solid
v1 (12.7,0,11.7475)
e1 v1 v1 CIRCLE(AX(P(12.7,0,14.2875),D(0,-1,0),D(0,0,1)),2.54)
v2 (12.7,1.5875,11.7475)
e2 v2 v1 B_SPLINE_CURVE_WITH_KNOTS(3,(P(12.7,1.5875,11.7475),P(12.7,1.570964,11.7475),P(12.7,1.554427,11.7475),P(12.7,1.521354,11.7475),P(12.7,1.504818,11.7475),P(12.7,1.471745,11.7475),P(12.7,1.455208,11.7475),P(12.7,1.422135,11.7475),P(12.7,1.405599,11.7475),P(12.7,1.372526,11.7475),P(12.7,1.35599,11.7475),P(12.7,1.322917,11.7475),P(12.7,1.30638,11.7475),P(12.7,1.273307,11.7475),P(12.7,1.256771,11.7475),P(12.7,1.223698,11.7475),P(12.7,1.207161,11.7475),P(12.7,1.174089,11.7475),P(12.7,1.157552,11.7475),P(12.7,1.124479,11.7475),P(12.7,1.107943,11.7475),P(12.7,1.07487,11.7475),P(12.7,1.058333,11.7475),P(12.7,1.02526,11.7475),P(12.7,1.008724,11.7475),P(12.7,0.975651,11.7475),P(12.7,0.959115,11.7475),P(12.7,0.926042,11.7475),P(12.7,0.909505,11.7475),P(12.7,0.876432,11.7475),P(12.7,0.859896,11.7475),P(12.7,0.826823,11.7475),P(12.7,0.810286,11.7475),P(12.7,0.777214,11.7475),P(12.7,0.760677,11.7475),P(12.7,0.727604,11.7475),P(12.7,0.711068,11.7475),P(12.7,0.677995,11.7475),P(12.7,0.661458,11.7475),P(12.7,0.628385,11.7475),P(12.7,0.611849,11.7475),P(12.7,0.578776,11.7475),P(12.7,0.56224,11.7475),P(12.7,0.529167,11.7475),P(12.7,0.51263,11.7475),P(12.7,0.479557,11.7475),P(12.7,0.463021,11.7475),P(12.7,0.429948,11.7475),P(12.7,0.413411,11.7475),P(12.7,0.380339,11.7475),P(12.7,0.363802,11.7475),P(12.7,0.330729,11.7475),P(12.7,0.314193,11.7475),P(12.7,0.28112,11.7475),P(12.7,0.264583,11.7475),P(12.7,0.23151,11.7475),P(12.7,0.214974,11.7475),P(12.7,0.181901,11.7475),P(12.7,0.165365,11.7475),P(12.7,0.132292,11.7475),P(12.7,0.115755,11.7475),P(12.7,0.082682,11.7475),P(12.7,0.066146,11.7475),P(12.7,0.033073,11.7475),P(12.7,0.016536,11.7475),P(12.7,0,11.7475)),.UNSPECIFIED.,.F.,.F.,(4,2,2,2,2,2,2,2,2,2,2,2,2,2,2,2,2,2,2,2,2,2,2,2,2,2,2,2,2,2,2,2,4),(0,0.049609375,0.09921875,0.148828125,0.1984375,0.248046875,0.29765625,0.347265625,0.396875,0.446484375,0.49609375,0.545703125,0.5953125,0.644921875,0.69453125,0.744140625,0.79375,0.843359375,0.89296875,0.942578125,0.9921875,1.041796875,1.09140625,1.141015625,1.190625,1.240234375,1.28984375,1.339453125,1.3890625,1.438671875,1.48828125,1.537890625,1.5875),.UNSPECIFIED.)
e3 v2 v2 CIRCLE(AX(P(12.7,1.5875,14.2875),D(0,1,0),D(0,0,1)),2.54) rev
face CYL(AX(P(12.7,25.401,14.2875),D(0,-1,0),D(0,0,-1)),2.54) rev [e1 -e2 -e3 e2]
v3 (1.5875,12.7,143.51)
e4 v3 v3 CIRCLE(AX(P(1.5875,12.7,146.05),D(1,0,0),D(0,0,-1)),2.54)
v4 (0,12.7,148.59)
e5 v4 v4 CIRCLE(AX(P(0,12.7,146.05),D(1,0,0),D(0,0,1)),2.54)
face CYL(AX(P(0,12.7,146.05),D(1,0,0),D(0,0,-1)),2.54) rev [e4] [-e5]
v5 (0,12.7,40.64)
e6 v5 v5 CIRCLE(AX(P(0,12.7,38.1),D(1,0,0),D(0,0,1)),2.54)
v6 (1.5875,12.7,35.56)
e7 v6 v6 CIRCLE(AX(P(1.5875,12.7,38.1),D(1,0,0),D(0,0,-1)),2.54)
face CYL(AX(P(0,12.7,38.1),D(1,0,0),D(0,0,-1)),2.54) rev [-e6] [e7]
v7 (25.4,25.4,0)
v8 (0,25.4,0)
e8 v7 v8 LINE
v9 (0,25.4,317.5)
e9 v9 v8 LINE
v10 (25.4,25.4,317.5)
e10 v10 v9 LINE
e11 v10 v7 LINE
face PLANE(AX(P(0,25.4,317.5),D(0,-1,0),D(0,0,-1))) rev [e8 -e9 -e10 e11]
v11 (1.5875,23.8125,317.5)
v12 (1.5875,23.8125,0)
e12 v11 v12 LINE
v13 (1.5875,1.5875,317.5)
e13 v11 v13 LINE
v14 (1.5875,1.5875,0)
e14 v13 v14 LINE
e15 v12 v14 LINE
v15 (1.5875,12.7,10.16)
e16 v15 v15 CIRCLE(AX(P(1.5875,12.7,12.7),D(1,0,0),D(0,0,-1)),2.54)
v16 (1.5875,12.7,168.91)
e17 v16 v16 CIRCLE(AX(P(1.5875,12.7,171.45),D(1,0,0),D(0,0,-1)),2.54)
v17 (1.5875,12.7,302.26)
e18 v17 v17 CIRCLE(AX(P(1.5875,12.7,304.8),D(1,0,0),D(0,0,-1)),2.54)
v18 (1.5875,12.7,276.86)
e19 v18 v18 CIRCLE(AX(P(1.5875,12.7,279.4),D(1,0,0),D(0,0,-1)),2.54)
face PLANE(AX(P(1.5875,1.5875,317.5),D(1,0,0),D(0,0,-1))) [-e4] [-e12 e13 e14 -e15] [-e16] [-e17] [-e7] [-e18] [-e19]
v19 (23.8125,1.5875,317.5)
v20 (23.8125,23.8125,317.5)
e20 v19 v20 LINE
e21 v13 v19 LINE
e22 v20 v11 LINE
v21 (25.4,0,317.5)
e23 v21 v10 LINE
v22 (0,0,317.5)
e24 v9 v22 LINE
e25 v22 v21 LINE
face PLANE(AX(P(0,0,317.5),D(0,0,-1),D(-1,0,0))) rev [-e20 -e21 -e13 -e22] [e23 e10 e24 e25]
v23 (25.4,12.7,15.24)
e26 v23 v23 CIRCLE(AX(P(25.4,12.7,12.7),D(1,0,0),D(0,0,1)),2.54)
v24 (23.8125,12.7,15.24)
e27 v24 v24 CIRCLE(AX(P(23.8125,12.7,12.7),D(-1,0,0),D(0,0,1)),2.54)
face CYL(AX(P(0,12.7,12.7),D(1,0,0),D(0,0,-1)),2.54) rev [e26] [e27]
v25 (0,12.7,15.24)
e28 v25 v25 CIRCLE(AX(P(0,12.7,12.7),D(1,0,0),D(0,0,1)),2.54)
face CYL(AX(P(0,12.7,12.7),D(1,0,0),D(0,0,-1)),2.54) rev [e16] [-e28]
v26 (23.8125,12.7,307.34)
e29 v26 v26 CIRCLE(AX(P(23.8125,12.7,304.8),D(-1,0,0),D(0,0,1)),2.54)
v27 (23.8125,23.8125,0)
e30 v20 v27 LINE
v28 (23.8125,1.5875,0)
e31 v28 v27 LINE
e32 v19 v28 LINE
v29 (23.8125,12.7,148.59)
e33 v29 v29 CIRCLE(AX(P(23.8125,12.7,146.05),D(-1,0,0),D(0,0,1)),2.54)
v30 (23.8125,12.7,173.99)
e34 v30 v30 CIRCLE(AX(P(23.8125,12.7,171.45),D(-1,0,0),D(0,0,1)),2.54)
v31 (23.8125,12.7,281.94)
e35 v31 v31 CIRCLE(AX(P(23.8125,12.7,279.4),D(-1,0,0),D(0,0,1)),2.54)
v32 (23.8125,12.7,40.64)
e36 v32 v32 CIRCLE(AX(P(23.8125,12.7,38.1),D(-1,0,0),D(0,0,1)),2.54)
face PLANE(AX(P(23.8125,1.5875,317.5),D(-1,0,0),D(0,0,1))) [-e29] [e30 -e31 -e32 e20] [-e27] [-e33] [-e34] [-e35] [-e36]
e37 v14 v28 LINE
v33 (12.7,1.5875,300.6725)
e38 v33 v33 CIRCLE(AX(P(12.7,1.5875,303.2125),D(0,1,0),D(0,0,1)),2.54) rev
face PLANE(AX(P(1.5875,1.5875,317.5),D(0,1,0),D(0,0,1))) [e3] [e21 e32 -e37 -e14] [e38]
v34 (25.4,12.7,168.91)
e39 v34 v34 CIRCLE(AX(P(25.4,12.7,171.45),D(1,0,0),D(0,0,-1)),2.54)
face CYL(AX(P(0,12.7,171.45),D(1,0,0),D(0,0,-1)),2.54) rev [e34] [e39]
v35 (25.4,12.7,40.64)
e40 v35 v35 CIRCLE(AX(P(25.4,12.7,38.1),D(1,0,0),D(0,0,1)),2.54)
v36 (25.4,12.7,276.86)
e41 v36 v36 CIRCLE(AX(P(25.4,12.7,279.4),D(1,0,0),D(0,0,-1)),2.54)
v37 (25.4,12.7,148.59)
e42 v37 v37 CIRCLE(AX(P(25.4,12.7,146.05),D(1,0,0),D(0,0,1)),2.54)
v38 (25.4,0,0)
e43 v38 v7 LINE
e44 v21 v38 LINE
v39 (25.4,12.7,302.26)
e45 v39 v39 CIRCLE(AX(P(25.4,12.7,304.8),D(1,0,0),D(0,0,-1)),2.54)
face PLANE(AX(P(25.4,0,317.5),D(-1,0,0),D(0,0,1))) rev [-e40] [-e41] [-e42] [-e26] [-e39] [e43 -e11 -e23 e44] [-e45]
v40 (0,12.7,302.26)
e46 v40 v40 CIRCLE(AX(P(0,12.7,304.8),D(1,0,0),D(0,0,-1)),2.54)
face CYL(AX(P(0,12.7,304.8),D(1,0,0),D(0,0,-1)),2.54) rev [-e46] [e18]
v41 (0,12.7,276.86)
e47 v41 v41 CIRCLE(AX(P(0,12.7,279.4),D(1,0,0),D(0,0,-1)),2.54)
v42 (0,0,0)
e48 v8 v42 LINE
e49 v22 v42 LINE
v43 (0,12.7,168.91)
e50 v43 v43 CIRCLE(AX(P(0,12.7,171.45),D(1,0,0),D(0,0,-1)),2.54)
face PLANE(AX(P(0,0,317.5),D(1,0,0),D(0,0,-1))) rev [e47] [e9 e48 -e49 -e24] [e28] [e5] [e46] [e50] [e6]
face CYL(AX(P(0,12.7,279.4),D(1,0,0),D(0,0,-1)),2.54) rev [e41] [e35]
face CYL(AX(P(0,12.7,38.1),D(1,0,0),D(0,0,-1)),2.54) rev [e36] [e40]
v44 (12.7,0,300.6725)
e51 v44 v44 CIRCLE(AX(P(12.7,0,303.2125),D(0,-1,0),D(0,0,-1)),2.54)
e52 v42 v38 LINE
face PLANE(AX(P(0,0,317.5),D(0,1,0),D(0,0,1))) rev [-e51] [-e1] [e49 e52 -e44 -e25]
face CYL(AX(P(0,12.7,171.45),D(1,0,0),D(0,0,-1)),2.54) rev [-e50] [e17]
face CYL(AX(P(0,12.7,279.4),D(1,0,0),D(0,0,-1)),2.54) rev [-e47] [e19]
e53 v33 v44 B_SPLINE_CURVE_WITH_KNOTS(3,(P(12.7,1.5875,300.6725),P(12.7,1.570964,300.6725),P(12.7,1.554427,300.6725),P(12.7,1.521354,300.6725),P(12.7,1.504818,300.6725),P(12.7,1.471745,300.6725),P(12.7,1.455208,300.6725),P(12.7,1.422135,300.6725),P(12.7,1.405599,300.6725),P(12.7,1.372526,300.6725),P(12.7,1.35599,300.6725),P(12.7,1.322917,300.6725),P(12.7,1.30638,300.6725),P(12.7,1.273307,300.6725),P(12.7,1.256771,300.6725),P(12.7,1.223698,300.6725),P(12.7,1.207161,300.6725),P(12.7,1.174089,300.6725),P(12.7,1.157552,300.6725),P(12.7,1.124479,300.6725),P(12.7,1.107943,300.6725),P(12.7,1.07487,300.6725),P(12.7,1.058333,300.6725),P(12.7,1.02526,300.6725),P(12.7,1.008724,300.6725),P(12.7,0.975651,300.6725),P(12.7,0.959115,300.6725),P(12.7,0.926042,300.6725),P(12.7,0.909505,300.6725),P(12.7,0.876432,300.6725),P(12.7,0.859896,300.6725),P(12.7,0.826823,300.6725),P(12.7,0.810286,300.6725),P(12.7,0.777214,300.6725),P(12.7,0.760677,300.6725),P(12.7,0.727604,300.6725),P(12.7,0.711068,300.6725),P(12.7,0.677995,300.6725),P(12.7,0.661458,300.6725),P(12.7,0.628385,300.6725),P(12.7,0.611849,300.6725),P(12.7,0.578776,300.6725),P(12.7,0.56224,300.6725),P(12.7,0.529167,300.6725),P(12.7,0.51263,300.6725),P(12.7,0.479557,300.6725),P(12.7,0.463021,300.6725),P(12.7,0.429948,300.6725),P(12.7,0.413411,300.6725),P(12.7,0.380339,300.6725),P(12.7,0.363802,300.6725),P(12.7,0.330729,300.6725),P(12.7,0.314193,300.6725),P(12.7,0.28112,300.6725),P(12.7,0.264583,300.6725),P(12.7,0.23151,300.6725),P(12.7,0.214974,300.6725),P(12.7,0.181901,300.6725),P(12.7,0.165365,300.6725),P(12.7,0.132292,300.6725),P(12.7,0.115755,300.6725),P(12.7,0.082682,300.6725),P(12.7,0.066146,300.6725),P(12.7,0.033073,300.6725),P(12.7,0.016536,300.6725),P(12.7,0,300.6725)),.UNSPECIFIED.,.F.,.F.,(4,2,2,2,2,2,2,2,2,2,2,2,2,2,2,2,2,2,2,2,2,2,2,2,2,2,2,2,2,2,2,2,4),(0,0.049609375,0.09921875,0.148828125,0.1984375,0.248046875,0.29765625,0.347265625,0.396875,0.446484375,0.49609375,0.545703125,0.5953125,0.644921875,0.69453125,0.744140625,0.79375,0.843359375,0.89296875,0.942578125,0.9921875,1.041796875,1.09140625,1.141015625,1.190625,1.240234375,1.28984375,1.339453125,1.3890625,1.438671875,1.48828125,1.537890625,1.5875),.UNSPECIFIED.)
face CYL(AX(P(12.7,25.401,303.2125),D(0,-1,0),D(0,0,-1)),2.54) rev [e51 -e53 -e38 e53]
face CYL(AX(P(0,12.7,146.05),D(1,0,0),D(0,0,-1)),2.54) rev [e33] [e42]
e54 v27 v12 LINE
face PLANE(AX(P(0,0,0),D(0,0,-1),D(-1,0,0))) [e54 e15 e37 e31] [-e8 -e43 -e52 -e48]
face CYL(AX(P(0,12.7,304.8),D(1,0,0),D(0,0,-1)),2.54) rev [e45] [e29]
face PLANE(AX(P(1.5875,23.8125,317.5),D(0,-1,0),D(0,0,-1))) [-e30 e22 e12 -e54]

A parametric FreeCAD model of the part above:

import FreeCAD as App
import Part
import Sketcher

V = App.Vector
Q = App.Units.Quantity


def add_polygon(sketch, points):
    """Adds a closed chain of lines whose ends are joined by coincident constraints."""
    first, n = sketch.GeometryCount, len(points)
    for a, b in zip(points, points[1:] + points[:1]):
        sketch.addGeometry(Part.LineSegment(App.Vector(*a, 0), App.Vector(*b, 0)), False)
    for i in range(n):
        sketch.addConstraint(Sketcher.Constraint("Coincident", first + i, 2, first + (i + 1) % n, 1))

doc = App.newDocument("Part")
body = doc.addObject("PartDesign::Body", "Body")

# Sketch on XY plane
sketch1 = body.newObject("Sketcher::SketchObject", "Sketch")
sketch1.AttachmentSupport = (doc.getObject("XY_Plane"), [""])
sketch1.MapMode = "FlatFace"
add_polygon(sketch1, [(0, 25.4), (0, 0), (25.4, 0), (25.4, 25.4)])  # lines 0-3
add_polygon(sketch1, [(23.8125, 1.5875), (1.5875, 1.5875), (1.5875, 23.8125), (23.8125, 23.8125)])  # lines 4-7
sketch1.addConstraint(Sketcher.Constraint("Vertical", 0))
sketch1.addConstraint(Sketcher.Constraint("Horizontal", 1))
sketch1.addConstraint(Sketcher.Constraint("Vertical", 2))
sketch1.addConstraint(Sketcher.Constraint("Horizontal", 3))
sketch1.addConstraint(Sketcher.Constraint("Horizontal", 4))
sketch1.addConstraint(Sketcher.Constraint("Vertical", 5))
sketch1.addConstraint(Sketcher.Constraint("Horizontal", 6))
sketch1.addConstraint(Sketcher.Constraint("Vertical", 7))
sketch1.addConstraint(Sketcher.Constraint("Coincident", 0, 2, -1, 1))
sketch1.addConstraint(Sketcher.Constraint("Equal", 3, 0))
sketch1.addConstraint(Sketcher.Constraint("Equal", 6, 5))
sketch1.addConstraint(Sketcher.Constraint("DistanceX", 1, 1, 1, 2, Q("1 in")))
sketch1.addConstraint(Sketcher.Constraint("DistanceX", 4, 2, 4, 1, Q("0.875 in")))
sketch1.addConstraint(Sketcher.Constraint("DistanceX", -1, 1, 4, 2, Q("0.0625 in")))
sketch1.addConstraint(Sketcher.Constraint("DistanceY", -1, 1, 4, 2, Q("0.0625 in")))
pad1 = body.newObject("PartDesign::Pad", "Pad")
pad1.Profile = sketch1
pad1.Length = Q("12.5 in")

# Sketch on YZ plane
sketch2 = body.newObject("Sketcher::SketchObject", "Sketch001")
sketch2.AttachmentSupport = (doc.getObject("YZ_Plane"), [""])
sketch2.MapMode = "FlatFace"
sketch2.AttachmentOffset = App.Placement(V(0, 0, 1 * 25.4), App.Rotation())
sketch2.addGeometry(Part.Circle(V(12.7, 304.8, 0), V(0, 0, 1), 2.54), False)
sketch2.addGeometry(Part.Circle(V(12.7, 279.4, 0), V(0, 0, 1), 2.54), False)
sketch2.addGeometry(Part.Circle(V(12.7, 38.1, 0), V(0, 0, 1), 2.54), False)
sketch2.addGeometry(Part.Circle(V(12.7, 12.7, 0), V(0, 0, 1), 2.54), False)
sketch2.addGeometry(Part.Circle(V(12.7, 171.45, 0), V(0, 0, 1), 2.54), False)
sketch2.addGeometry(Part.Circle(V(12.7, 146.05, 0), V(0, 0, 1), 2.54), False)
sketch2.addConstraint(Sketcher.Constraint("Equal", 0, 1))
sketch2.addConstraint(Sketcher.Constraint("Equal", 1, 2))
sketch2.addConstraint(Sketcher.Constraint("Equal", 2, 3))
sketch2.addConstraint(Sketcher.Constraint("Equal", 3, 4))
sketch2.addConstraint(Sketcher.Constraint("Equal", 4, 5))
sketch2.addConstraint(Sketcher.Constraint("Vertical", 0, 3, 1, 3))
sketch2.addConstraint(Sketcher.Constraint("Vertical", 1, 3, 2, 3))
sketch2.addConstraint(Sketcher.Constraint("Vertical", 2, 3, 3, 3))
sketch2.addConstraint(Sketcher.Constraint("Vertical", 3, 3, 4, 3))
sketch2.addConstraint(Sketcher.Constraint("Vertical", 4, 3, 5, 3))
sketch2.addConstraint(Sketcher.Constraint("Diameter", 0, Q("0.2 in")))
sketch2.addConstraint(Sketcher.Constraint("DistanceY", -1, 1, 0, 3, Q("12 in")))
sketch2.addConstraint(Sketcher.Constraint("DistanceY", -1, 1, 1, 3, Q("11 in")))
sketch2.addConstraint(Sketcher.Constraint("DistanceY", 3, 3, 2, 3, Q("1 in")))
sketch2.addConstraint(Sketcher.Constraint("DistanceY", 5, 3, 4, 3, Q("1 in")))
sketch2.addConstraint(Sketcher.Constraint("DistanceX", -1, 1, 0, 3, Q("0.5 in")))
sketch2.addConstraint(Sketcher.Constraint("DistanceY", -1, 1, 2, 3, Q("1.5 in")))
sketch2.addConstraint(Sketcher.Constraint("DistanceY", -1, 1, 4, 3, Q("6.75 in")))
pocket1 = body.newObject("PartDesign::Pocket", "Pocket")
pocket1.Profile = sketch2
pocket1.Type = "ThroughAll"

# Sketch on XZ plane
sketch3 = body.newObject("Sketcher::SketchObject", "Sketch002")
sketch3.AttachmentSupport = (doc.getObject("XZ_Plane"), [""])
sketch3.MapMode = "FlatFace"
sketch3.addGeometry(Part.Circle(V(12.7, 303.2125, 0), V(0, 0, 1), 2.54), False)
sketch3.addConstraint(Sketcher.Constraint("Diameter", 0, Q("0.2 in")))
sketch3.addConstraint(Sketcher.Constraint("DistanceX", -1, 1, 0, 3, Q("0.5 in")))
sketch3.addConstraint(Sketcher.Constraint("DistanceY", -1, 1, 0, 3, Q("11.9375 in")))
pocket2 = body.newObject("PartDesign::Pocket", "Pocket001")
pocket2.Profile = sketch3
pocket2.Type = "UpToFirst"

# Sketch on XZ plane
sketch4 = body.newObject("Sketcher::SketchObject", "Sketch003")
sketch4.AttachmentSupport = (doc.getObject("XZ_Plane"), [""])
sketch4.MapMode = "FlatFace"
sketch4.addGeometry(Part.Circle(V(12.7, 14.2875, 0), V(0, 0, 1), 2.54), False)
sketch4.addConstraint(Sketcher.Constraint("Diameter", 0, Q("0.2 in")))
sketch4.addConstraint(Sketcher.Constraint("DistanceX", -1, 1, 0, 3, Q("0.5 in")))
sketch4.addConstraint(Sketcher.Constraint("DistanceY", -1, 1, 0, 3, Q("0.5625 in")))
pocket3 = body.newObject("PartDesign::Pocket", "Pocket002")
pocket3.Profile = sketch4
pocket3.Type = "UpToFirst"

doc.recompute()
